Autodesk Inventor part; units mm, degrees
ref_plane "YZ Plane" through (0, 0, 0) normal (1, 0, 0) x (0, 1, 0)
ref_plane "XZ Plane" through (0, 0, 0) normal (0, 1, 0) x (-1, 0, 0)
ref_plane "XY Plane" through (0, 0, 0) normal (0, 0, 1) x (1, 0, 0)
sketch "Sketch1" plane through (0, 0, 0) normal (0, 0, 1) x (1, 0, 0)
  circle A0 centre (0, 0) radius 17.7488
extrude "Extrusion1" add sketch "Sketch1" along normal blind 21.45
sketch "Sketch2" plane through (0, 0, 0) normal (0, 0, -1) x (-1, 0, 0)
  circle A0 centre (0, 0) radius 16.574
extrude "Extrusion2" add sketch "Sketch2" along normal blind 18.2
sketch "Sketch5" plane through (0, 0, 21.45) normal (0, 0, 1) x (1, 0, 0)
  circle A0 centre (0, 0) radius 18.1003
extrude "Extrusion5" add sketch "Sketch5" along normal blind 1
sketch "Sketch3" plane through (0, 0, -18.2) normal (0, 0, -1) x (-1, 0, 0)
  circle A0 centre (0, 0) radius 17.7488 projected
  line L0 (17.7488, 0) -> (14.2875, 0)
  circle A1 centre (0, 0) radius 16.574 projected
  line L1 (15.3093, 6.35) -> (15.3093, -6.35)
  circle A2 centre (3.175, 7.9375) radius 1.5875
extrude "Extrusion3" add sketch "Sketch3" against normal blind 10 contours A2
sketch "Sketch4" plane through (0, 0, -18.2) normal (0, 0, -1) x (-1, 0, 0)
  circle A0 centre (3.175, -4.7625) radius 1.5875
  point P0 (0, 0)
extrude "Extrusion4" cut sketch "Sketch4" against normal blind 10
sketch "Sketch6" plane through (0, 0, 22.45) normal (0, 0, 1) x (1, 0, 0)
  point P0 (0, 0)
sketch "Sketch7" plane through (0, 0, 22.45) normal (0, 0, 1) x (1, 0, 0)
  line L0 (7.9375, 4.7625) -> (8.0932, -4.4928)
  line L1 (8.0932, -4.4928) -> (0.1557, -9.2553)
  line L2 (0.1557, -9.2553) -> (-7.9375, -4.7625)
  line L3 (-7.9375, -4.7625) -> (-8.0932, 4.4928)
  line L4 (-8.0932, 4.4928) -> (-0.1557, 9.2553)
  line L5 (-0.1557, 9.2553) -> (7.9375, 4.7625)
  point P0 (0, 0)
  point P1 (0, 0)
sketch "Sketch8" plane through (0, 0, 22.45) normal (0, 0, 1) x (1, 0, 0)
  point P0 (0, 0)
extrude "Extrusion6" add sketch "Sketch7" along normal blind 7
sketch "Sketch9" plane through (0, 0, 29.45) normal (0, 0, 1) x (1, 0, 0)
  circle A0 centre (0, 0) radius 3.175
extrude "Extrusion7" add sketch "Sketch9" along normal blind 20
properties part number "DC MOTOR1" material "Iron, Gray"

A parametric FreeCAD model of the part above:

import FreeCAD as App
import Part
import Sketcher

V = App.Vector

doc = App.newDocument("Part")
params = doc.addObject("Spreadsheet::Sheet", "Params")
for row, (alias, value) in enumerate([
    ("pad1_length", "21.45 mm"),
    ("pad2_length", "18.2 mm"),
    ("pad3_length", "1 mm"),
    ("pad4_length", "10 mm"),
    ("pocket1_length", "10 mm"),
    ("pad5_length", "7 mm"),
    ("sketch7_diameter", "6.35 mm"),
    ("pad6_length", "20 mm"),
], start=1):
    params.set(f"A{row}", alias)
    params.set(f"B{row}", "=" + value)
    params.setAlias(f"B{row}", alias)

body = doc.addObject("PartDesign::Body", "Body")

# Sketch on XY plane
sketch1 = body.newObject("Sketcher::SketchObject", "Sketch")
sketch1.AttachmentSupport = (doc.getObject("XY_Plane"), [""])
sketch1.MapMode = "FlatFace"
sketch1.addGeometry(Part.Circle(V(0, 0, 0), V(0, 0, 1), 18), False)
sketch1.addConstraint(Sketcher.Constraint("Coincident", 0, 3, -1, 1))
sketch1.addConstraint(Sketcher.Constraint("Diameter", 0, 35.4976))
pad1 = body.newObject("PartDesign::Pad", "Pad")
pad1.Profile = sketch1
pad1.setExpression("Length", "Params.pad1_length")

# Sketch on XY plane
sketch2 = body.newObject("Sketcher::SketchObject", "Sketch001")
sketch2.AttachmentSupport = (doc.getObject("XY_Plane"), [""])
sketch2.MapMode = "FlatFace"
sketch2.addGeometry(Part.Circle(V(0, 0, 0), V(0, 0, 1), 17), False)
sketch2.addConstraint(Sketcher.Constraint("Coincident", 0, 3, -1, 1))
sketch2.addConstraint(Sketcher.Constraint("Diameter", 0, 33.148))
pad2 = body.newObject("PartDesign::Pad", "Pad001")
pad2.Profile = sketch2
pad2.setExpression("Length", "Params.pad2_length")
pad2.Reversed = True

# Sketch on XY plane
sketch3 = body.newObject("Sketcher::SketchObject", "Sketch002")
sketch3.AttachmentSupport = (doc.getObject("XY_Plane"), [""])
sketch3.MapMode = "FlatFace"
sketch3.AttachmentOffset = App.Placement(V(0, 0, 21.45), App.Rotation())
sketch3.addGeometry(Part.Circle(V(0, 0, 0), V(0, 0, 1), 18), False)
sketch3.addConstraint(Sketcher.Constraint("Coincident", 0, 3, -1, 1))
sketch3.addConstraint(Sketcher.Constraint("Diameter", 0, 36.2006))
pad3 = body.newObject("PartDesign::Pad", "Pad002")
pad3.Profile = sketch3
pad3.setExpression("Length", "Params.pad3_length")

# Sketch on XY plane
sketch4 = body.newObject("Sketcher::SketchObject", "Sketch003")
sketch4.AttachmentSupport = (doc.getObject("XY_Plane"), [""])
sketch4.MapMode = "FlatFace"
sketch4.AttachmentOffset = App.Placement(V(0, 0, -18.2), App.Rotation())
sketch4.addGeometry(Part.Circle(V(-3.2, 7.9, 0), V(0, 0, 1), 1.6), False)
sketch4.addConstraint(Sketcher.Constraint("Diameter", 0, 3.175))
sketch4.addConstraint(Sketcher.Constraint("DistanceX", 0, 3, -1, 1, 3.175))
sketch4.addConstraint(Sketcher.Constraint("DistanceY", -1, 1, 0, 3, 7.9375))
pad4 = body.newObject("PartDesign::Pad", "Pad003")
pad4.Profile = sketch4
pad4.setExpression("Length", "Params.pad4_length")

# Sketch on XY plane
sketch5 = body.newObject("Sketcher::SketchObject", "Sketch004")
sketch5.AttachmentSupport = (doc.getObject("XY_Plane"), [""])
sketch5.MapMode = "FlatFace"
sketch5.AttachmentOffset = App.Placement(V(0, 0, -18.2), App.Rotation())
sketch5.addGeometry(Part.Circle(V(-3.2, -4.8, 0), V(0, 0, 1), 1.6), False)
sketch5.addConstraint(Sketcher.Constraint("Diameter", 0, 3.175))
sketch5.addConstraint(Sketcher.Constraint("DistanceX", 0, 3, -1, 1, 3.175))
sketch5.addConstraint(Sketcher.Constraint("DistanceY", 0, 3, -1, 1, 4.7625))
pocket1 = body.newObject("PartDesign::Pocket", "Pocket")
pocket1.Profile = sketch5
pocket1.setExpression("Length", "Params.pocket1_length")
pocket1.Reversed = True

# Sketch on XY plane
sketch6 = body.newObject("Sketcher::SketchObject", "Sketch005")
sketch6.AttachmentSupport = (doc.getObject("XY_Plane"), [""])
sketch6.MapMode = "FlatFace"
sketch6.AttachmentOffset = App.Placement(V(0, 0, 22.45), App.Rotation())
sketch6.addGeometry(Part.LineSegment(V(8, -4, 0), V(8, 5, 0)), False)
sketch6.addGeometry(Part.LineSegment(V(8, 5, 0), V(0, 9, 0)), False)
sketch6.addGeometry(Part.LineSegment(V(0, 9, 0), V(-8, 4, 0)), False)
sketch6.addGeometry(Part.LineSegment(V(-8, 4, 0), V(-8, -5, 0)), False)
sketch6.addGeometry(Part.LineSegment(V(-8, -5, 0), V(0, -9, 0)), False)
sketch6.addGeometry(Part.LineSegment(V(0, -9, 0), V(8, -4, 0)), False)
sketch6.addConstraint(Sketcher.Constraint("Coincident", 0, 2, 1, 1))
sketch6.addConstraint(Sketcher.Constraint("Coincident", 1, 2, 2, 1))
sketch6.addConstraint(Sketcher.Constraint("Coincident", 2, 2, 3, 1))
sketch6.addConstraint(Sketcher.Constraint("Coincident", 3, 2, 4, 1))
sketch6.addConstraint(Sketcher.Constraint("Coincident", 4, 2, 5, 1))
sketch6.addConstraint(Sketcher.Constraint("Coincident", 5, 2, 0, 1))
sketch6.addConstraint(Sketcher.Constraint("Symmetric", 0, 2, 3, 2, -1, 1))
sketch6.addConstraint(Sketcher.Constraint("Symmetric", 1, 2, 4, 2, -1, 1))
sketch6.addConstraint(Sketcher.Constraint("Symmetric", 2, 2, 5, 2, -1, 1))
sketch6.addConstraint(Sketcher.Constraint("Equal", 0, 1))
sketch6.addConstraint(Sketcher.Constraint("Equal", 1, 2))
sketch6.addConstraint(Sketcher.Constraint("DistanceX", 3, 2, 0, 2, 15.875))
sketch6.addConstraint(Sketcher.Constraint("DistanceY", 3, 2, 0, 2, 9.525))
sketch6.addConstraint(Sketcher.Constraint("DistanceX", 2, 2, 4, 2, 8.249))
sketch6.addConstraint(Sketcher.Constraint("DistanceY", 4, 2, 2, 2, 13.748))
pad5 = body.newObject("PartDesign::Pad", "Pad004")
pad5.Profile = sketch6
pad5.setExpression("Length", "Params.pad5_length")

# Sketch on XY plane
sketch7 = body.newObject("Sketcher::SketchObject", "Sketch006")
sketch7.AttachmentSupport = (doc.getObject("XY_Plane"), [""])
sketch7.MapMode = "FlatFace"
sketch7.AttachmentOffset = App.Placement(V(0, 0, 29.45), App.Rotation())
sketch7.addGeometry(Part.Circle(V(0, 0, 0), V(0, 0, 1), 3.2), False)
sketch7.addConstraint(Sketcher.Constraint("Coincident", 0, 3, -1, 1))
sketch7.addConstraint(Sketcher.Constraint("Diameter", 0, 6.35))
sketch7.setExpression("Constraints[1]", "Params.sketch7_diameter")
pad6 = body.newObject("PartDesign::Pad", "Pad005")
pad6.Profile = sketch7
pad6.setExpression("Length", "Params.pad6_length")

doc.recompute()
